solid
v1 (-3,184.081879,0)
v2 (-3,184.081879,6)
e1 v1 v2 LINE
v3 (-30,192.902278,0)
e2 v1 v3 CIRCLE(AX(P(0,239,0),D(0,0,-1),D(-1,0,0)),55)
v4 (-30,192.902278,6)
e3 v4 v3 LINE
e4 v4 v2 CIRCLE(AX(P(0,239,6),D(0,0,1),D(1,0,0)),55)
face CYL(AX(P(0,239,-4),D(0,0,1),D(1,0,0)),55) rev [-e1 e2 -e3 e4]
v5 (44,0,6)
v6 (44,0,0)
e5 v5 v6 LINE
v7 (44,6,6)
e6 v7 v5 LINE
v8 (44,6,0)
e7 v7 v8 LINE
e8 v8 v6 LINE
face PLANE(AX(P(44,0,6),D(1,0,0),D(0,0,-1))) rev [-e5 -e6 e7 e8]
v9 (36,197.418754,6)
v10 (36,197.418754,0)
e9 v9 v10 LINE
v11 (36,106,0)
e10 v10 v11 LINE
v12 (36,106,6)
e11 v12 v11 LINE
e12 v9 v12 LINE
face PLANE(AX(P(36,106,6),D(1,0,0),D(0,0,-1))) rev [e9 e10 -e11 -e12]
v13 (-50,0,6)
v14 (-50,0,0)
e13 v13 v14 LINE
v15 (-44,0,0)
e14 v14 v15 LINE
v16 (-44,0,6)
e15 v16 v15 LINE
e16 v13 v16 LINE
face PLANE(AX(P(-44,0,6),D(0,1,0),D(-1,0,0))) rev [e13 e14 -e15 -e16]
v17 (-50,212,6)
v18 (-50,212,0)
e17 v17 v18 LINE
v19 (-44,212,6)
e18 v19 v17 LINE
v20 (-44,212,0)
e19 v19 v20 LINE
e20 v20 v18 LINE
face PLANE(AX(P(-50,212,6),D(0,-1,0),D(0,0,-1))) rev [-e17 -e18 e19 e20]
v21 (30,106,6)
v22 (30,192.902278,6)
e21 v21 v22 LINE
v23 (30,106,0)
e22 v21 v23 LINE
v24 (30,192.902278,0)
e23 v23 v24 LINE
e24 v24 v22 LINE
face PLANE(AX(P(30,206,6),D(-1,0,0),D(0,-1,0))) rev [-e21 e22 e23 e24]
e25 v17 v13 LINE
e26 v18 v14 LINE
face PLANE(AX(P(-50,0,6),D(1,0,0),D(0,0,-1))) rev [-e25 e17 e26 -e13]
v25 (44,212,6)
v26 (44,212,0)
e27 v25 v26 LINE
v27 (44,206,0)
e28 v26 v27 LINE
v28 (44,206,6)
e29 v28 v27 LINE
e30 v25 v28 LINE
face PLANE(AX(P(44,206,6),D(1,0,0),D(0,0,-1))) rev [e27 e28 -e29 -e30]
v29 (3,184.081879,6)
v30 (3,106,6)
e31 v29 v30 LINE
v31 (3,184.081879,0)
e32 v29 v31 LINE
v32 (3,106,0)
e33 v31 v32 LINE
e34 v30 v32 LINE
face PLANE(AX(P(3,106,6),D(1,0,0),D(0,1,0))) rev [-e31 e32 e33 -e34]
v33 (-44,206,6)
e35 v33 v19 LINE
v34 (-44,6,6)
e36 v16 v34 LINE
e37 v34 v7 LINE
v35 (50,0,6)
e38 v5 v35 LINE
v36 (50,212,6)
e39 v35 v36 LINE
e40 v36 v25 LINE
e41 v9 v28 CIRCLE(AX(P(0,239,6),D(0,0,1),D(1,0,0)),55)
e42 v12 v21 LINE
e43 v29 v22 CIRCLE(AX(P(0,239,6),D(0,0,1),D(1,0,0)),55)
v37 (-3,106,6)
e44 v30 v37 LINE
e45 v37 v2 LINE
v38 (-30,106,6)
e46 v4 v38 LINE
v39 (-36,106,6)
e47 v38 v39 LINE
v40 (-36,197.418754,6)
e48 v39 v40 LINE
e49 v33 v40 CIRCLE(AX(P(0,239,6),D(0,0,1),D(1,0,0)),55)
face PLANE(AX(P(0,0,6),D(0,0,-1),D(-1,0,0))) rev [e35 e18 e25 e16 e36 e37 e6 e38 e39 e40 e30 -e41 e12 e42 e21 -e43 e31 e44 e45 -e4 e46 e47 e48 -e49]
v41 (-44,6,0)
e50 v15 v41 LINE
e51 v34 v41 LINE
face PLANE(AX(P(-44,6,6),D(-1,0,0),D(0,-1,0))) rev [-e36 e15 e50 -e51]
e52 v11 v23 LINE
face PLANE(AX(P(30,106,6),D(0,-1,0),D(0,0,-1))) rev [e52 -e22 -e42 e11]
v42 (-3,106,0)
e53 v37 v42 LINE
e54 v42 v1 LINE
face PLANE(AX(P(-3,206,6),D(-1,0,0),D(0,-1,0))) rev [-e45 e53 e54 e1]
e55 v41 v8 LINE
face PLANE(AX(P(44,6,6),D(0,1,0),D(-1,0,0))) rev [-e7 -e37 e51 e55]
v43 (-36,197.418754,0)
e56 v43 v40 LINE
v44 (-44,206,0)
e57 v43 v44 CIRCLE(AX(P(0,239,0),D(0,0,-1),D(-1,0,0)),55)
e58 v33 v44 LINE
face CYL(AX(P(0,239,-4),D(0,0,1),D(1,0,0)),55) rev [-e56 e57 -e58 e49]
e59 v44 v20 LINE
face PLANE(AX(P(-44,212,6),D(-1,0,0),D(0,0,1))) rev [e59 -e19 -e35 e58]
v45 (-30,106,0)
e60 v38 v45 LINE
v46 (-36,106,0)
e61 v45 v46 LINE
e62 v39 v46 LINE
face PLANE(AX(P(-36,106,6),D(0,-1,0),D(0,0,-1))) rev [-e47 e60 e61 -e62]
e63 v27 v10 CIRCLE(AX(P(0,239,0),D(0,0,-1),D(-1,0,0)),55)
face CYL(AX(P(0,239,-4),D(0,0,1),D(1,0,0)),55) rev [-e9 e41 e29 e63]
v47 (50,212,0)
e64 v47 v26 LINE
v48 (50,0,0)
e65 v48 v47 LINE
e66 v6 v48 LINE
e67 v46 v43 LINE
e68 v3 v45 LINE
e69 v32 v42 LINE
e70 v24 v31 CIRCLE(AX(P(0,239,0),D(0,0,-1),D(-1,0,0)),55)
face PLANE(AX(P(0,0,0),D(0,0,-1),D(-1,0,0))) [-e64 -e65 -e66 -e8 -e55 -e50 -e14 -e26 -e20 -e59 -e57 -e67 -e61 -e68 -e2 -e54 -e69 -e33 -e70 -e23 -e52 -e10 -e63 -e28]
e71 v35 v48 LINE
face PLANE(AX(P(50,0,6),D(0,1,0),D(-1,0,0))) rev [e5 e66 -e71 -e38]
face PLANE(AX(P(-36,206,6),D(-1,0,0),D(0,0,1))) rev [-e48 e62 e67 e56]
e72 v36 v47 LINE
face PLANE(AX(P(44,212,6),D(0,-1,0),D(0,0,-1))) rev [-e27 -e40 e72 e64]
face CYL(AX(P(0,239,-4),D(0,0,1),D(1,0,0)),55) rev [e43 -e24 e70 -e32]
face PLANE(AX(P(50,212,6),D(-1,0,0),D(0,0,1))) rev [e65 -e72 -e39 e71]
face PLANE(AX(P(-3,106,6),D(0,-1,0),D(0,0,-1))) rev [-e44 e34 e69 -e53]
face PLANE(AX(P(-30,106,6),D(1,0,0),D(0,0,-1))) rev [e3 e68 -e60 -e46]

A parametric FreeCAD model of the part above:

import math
import FreeCAD as App
import Part
import Sketcher
from FreeCAD import Vector
Q = App.Units.Quantity

doc = App.newDocument("Part")
body = doc.addObject("PartDesign::Body", "Body")

sketch1 = body.newObject("Sketcher::SketchObject", "Sketch")
sketch1.AttachmentSupport = (doc.getObject("XY_Plane"), [""])
sketch1.MapMode = "FlatFace"
sketch1.addGeometry(Part.LineSegment(Vector(-50, 212, 0), Vector(-50, 0, 0)), False)
sketch1.addGeometry(Part.LineSegment(Vector(-50, 0, 0), Vector(-44, 0, 0)), False)
sketch1.addGeometry(Part.LineSegment(Vector(-44, 0, 0), Vector(-44, 6, 0)), False)
sketch1.addGeometry(Part.LineSegment(Vector(-44, 6, 0), Vector(44, 6, 0)), False)
sketch1.addGeometry(Part.LineSegment(Vector(44, 6, 0), Vector(44, 0, 0)), False)
sketch1.addGeometry(Part.LineSegment(Vector(44, 0, 0), Vector(50, 0, 0)), False)
sketch1.addGeometry(Part.LineSegment(Vector(50, 0, 0), Vector(50, 212, 0)), False)
sketch1.addGeometry(Part.LineSegment(Vector(50, 212, 0), Vector(44, 212, 0)), False)
sketch1.addGeometry(Part.LineSegment(Vector(44, 212, 0), Vector(44, 206, 0)), False)
sketch1.addGeometry(Part.LineSegment(Vector(44, 206, 0), Vector(36, 206, 0)), False)
sketch1.addGeometry(Part.LineSegment(Vector(36, 206, 0), Vector(36, 106, 0)), False)
sketch1.addGeometry(Part.LineSegment(Vector(36, 106, 0), Vector(30, 106, 0)), False)
sketch1.addGeometry(Part.LineSegment(Vector(30, 106, 0), Vector(30, 206, 0)), False)
sketch1.addGeometry(Part.LineSegment(Vector(30, 206, 0), Vector(3, 206, 0)), False)
sketch1.addGeometry(Part.LineSegment(Vector(3, 206, 0), Vector(3, 106, 0)), False)
sketch1.addGeometry(Part.LineSegment(Vector(3, 106, 0), Vector(-3, 106, 0)), False)
sketch1.addGeometry(Part.LineSegment(Vector(-3, 106, 0), Vector(-3, 206, 0)), False)
sketch1.addGeometry(Part.LineSegment(Vector(-3, 206, 0), Vector(-30, 206, 0)), False)
sketch1.addGeometry(Part.LineSegment(Vector(-30, 206, 0), Vector(-30, 106, 0)), False)
sketch1.addGeometry(Part.LineSegment(Vector(-30, 106, 0), Vector(-36, 106, 0)), False)
sketch1.addGeometry(Part.LineSegment(Vector(-36, 106, 0), Vector(-36, 206, 0)), False)
sketch1.addGeometry(Part.LineSegment(Vector(-36, 206, 0), Vector(-44, 206, 0)), False)
sketch1.addGeometry(Part.LineSegment(Vector(-44, 206, 0), Vector(-44, 212, 0)), False)
sketch1.addGeometry(Part.LineSegment(Vector(-44, 212, 0), Vector(-50, 212, 0)), False)
sketch1.addConstraint(Sketcher.Constraint("Coincident", 0, 2, 1, 1))
sketch1.addConstraint(Sketcher.Constraint("Coincident", 1, 2, 2, 1))
sketch1.addConstraint(Sketcher.Constraint("Coincident", 2, 2, 3, 1))
sketch1.addConstraint(Sketcher.Constraint("Coincident", 3, 2, 4, 1))
sketch1.addConstraint(Sketcher.Constraint("Coincident", 4, 2, 5, 1))
sketch1.addConstraint(Sketcher.Constraint("Coincident", 5, 2, 6, 1))
sketch1.addConstraint(Sketcher.Constraint("Coincident", 6, 2, 7, 1))
sketch1.addConstraint(Sketcher.Constraint("Coincident", 7, 2, 8, 1))
sketch1.addConstraint(Sketcher.Constraint("Coincident", 8, 2, 9, 1))
sketch1.addConstraint(Sketcher.Constraint("Coincident", 9, 2, 10, 1))
sketch1.addConstraint(Sketcher.Constraint("Coincident", 10, 2, 11, 1))
sketch1.addConstraint(Sketcher.Constraint("Coincident", 11, 2, 12, 1))
sketch1.addConstraint(Sketcher.Constraint("Coincident", 12, 2, 13, 1))
sketch1.addConstraint(Sketcher.Constraint("Coincident", 13, 2, 14, 1))
sketch1.addConstraint(Sketcher.Constraint("Coincident", 14, 2, 15, 1))
sketch1.addConstraint(Sketcher.Constraint("Coincident", 15, 2, 16, 1))
sketch1.addConstraint(Sketcher.Constraint("Coincident", 16, 2, 17, 1))
sketch1.addConstraint(Sketcher.Constraint("Coincident", 17, 2, 18, 1))
sketch1.addConstraint(Sketcher.Constraint("Coincident", 18, 2, 19, 1))
sketch1.addConstraint(Sketcher.Constraint("Coincident", 19, 2, 20, 1))
sketch1.addConstraint(Sketcher.Constraint("Coincident", 20, 2, 21, 1))
sketch1.addConstraint(Sketcher.Constraint("Coincident", 21, 2, 22, 1))
sketch1.addConstraint(Sketcher.Constraint("Coincident", 22, 2, 23, 1))
sketch1.addConstraint(Sketcher.Constraint("Coincident", 23, 2, 0, 1))
sketch1.addConstraint(Sketcher.Constraint("Vertical", 0))
sketch1.addConstraint(Sketcher.Constraint("Horizontal", 1))
sketch1.addConstraint(Sketcher.Constraint("Vertical", 2))
sketch1.addConstraint(Sketcher.Constraint("Horizontal", 3))
sketch1.addConstraint(Sketcher.Constraint("Vertical", 4))
sketch1.addConstraint(Sketcher.Constraint("Horizontal", 5))
sketch1.addConstraint(Sketcher.Constraint("Vertical", 6))
sketch1.addConstraint(Sketcher.Constraint("Horizontal", 7))
sketch1.addConstraint(Sketcher.Constraint("Vertical", 8))
sketch1.addConstraint(Sketcher.Constraint("Horizontal", 9))
sketch1.addConstraint(Sketcher.Constraint("Vertical", 10))
sketch1.addConstraint(Sketcher.Constraint("Horizontal", 11))
sketch1.addConstraint(Sketcher.Constraint("Vertical", 12))
sketch1.addConstraint(Sketcher.Constraint("Horizontal", 13))
sketch1.addConstraint(Sketcher.Constraint("Vertical", 14))
sketch1.addConstraint(Sketcher.Constraint("Horizontal", 15))
sketch1.addConstraint(Sketcher.Constraint("Vertical", 16))
sketch1.addConstraint(Sketcher.Constraint("Horizontal", 17))
sketch1.addConstraint(Sketcher.Constraint("Vertical", 18))
sketch1.addConstraint(Sketcher.Constraint("Horizontal", 19))
sketch1.addConstraint(Sketcher.Constraint("Vertical", 20))
sketch1.addConstraint(Sketcher.Constraint("Horizontal", 21))
sketch1.addConstraint(Sketcher.Constraint("Vertical", 22))
sketch1.addConstraint(Sketcher.Constraint("Horizontal", 23))
sketch1.addConstraint(Sketcher.Constraint("Symmetric", 1, 2, 4, 2, -1, 1))
sketch1.addConstraint(Sketcher.Constraint("Symmetric", 0, 2, 5, 2, -2))
sketch1.addConstraint(Sketcher.Constraint("Symmetric", 13, 2, 16, 2, -2))
sketch1.addConstraint(Sketcher.Constraint("Symmetric", 11, 2, 18, 2, -2))
sketch1.addConstraint(Sketcher.Constraint("Symmetric", 9, 2, 20, 2, -2))
sketch1.addConstraint(Sketcher.Constraint("Symmetric", 7, 2, 22, 2, -2))
sketch1.addConstraint(Sketcher.Constraint("Horizontal", 9, 2, 12, 2))
sketch1.addConstraint(Sketcher.Constraint("Horizontal", 11, 2, 14, 2))
sketch1.addConstraint(Sketcher.Constraint("Vertical", 4, 2, 7, 2))
sketch1.addConstraint(Sketcher.Constraint("Equal", 7, 11))
sketch1.addConstraint(Sketcher.Constraint("Equal", 11, 15))
sketch1.addConstraint(Sketcher.Constraint("Equal", 23, 2))
sketch1.addConstraint(Sketcher.Constraint("Equal", 4, 8))
sketch1.addConstraint(Sketcher.Constraint("DistanceX", 1, 1, 1, 2, Q("6 mm")))
sketch1.addConstraint(Sketcher.Constraint("DistanceX", 3, 1, 3, 2, Q("88 mm")))
sketch1.addConstraint(Sketcher.Constraint("DistanceX", 9, 2, 9, 1, Q("8 mm")))
sketch1.addConstraint(Sketcher.Constraint("DistanceY", 0, 2, 0, 1, Q("212 mm")))
sketch1.addConstraint(Sketcher.Constraint("DistanceY", 10, 2, 10, 1, Q("100 mm")))
pad1 = body.newObject("PartDesign::Pad", "Pad")
pad1.Profile = sketch1
pad1.Length = 6

sketch2 = body.newObject("Sketcher::SketchObject", "Sketch001")
sketch2.AttachmentSupport = (doc.getObject("XY_Plane"), [""])
sketch2.MapMode = "FlatFace"
sketch2.AttachmentOffset = App.Placement(Vector(0, 0, 6), App.Rotation())
sketch2.addGeometry(Part.LineSegment(Vector(44, 206, 0), Vector(-44, 206, 0)), False)
sketch2.addGeometry(Part.ArcOfCircle(Part.Circle(Vector(0, 239, 0), Vector(0, 0, 1), 55), math.radians(-143), math.radians(-37)), False)
sketch2.addConstraint(Sketcher.Constraint("Coincident", 0, 1, 1, 2))
sketch2.addConstraint(Sketcher.Constraint("Coincident", 1, 1, 0, 2))
sketch2.addConstraint(Sketcher.Constraint("Horizontal", 0))
sketch2.addConstraint(Sketcher.Constraint("PointOnObject", 1, 3, -2))
sketch2.addConstraint(Sketcher.Constraint("Radius", 1, Q("55 mm")))
sketch2.addConstraint(Sketcher.Constraint("DistanceX", 0, 2, 0, 1, Q("88 mm")))
sketch2.addConstraint(Sketcher.Constraint("DistanceY", -1, 1, 1, 3, Q("239 mm")))
pocket1 = body.newObject("PartDesign::Pocket", "Pocket")
pocket1.Profile = sketch2
pocket1.Length = 10

doc.recompute()
